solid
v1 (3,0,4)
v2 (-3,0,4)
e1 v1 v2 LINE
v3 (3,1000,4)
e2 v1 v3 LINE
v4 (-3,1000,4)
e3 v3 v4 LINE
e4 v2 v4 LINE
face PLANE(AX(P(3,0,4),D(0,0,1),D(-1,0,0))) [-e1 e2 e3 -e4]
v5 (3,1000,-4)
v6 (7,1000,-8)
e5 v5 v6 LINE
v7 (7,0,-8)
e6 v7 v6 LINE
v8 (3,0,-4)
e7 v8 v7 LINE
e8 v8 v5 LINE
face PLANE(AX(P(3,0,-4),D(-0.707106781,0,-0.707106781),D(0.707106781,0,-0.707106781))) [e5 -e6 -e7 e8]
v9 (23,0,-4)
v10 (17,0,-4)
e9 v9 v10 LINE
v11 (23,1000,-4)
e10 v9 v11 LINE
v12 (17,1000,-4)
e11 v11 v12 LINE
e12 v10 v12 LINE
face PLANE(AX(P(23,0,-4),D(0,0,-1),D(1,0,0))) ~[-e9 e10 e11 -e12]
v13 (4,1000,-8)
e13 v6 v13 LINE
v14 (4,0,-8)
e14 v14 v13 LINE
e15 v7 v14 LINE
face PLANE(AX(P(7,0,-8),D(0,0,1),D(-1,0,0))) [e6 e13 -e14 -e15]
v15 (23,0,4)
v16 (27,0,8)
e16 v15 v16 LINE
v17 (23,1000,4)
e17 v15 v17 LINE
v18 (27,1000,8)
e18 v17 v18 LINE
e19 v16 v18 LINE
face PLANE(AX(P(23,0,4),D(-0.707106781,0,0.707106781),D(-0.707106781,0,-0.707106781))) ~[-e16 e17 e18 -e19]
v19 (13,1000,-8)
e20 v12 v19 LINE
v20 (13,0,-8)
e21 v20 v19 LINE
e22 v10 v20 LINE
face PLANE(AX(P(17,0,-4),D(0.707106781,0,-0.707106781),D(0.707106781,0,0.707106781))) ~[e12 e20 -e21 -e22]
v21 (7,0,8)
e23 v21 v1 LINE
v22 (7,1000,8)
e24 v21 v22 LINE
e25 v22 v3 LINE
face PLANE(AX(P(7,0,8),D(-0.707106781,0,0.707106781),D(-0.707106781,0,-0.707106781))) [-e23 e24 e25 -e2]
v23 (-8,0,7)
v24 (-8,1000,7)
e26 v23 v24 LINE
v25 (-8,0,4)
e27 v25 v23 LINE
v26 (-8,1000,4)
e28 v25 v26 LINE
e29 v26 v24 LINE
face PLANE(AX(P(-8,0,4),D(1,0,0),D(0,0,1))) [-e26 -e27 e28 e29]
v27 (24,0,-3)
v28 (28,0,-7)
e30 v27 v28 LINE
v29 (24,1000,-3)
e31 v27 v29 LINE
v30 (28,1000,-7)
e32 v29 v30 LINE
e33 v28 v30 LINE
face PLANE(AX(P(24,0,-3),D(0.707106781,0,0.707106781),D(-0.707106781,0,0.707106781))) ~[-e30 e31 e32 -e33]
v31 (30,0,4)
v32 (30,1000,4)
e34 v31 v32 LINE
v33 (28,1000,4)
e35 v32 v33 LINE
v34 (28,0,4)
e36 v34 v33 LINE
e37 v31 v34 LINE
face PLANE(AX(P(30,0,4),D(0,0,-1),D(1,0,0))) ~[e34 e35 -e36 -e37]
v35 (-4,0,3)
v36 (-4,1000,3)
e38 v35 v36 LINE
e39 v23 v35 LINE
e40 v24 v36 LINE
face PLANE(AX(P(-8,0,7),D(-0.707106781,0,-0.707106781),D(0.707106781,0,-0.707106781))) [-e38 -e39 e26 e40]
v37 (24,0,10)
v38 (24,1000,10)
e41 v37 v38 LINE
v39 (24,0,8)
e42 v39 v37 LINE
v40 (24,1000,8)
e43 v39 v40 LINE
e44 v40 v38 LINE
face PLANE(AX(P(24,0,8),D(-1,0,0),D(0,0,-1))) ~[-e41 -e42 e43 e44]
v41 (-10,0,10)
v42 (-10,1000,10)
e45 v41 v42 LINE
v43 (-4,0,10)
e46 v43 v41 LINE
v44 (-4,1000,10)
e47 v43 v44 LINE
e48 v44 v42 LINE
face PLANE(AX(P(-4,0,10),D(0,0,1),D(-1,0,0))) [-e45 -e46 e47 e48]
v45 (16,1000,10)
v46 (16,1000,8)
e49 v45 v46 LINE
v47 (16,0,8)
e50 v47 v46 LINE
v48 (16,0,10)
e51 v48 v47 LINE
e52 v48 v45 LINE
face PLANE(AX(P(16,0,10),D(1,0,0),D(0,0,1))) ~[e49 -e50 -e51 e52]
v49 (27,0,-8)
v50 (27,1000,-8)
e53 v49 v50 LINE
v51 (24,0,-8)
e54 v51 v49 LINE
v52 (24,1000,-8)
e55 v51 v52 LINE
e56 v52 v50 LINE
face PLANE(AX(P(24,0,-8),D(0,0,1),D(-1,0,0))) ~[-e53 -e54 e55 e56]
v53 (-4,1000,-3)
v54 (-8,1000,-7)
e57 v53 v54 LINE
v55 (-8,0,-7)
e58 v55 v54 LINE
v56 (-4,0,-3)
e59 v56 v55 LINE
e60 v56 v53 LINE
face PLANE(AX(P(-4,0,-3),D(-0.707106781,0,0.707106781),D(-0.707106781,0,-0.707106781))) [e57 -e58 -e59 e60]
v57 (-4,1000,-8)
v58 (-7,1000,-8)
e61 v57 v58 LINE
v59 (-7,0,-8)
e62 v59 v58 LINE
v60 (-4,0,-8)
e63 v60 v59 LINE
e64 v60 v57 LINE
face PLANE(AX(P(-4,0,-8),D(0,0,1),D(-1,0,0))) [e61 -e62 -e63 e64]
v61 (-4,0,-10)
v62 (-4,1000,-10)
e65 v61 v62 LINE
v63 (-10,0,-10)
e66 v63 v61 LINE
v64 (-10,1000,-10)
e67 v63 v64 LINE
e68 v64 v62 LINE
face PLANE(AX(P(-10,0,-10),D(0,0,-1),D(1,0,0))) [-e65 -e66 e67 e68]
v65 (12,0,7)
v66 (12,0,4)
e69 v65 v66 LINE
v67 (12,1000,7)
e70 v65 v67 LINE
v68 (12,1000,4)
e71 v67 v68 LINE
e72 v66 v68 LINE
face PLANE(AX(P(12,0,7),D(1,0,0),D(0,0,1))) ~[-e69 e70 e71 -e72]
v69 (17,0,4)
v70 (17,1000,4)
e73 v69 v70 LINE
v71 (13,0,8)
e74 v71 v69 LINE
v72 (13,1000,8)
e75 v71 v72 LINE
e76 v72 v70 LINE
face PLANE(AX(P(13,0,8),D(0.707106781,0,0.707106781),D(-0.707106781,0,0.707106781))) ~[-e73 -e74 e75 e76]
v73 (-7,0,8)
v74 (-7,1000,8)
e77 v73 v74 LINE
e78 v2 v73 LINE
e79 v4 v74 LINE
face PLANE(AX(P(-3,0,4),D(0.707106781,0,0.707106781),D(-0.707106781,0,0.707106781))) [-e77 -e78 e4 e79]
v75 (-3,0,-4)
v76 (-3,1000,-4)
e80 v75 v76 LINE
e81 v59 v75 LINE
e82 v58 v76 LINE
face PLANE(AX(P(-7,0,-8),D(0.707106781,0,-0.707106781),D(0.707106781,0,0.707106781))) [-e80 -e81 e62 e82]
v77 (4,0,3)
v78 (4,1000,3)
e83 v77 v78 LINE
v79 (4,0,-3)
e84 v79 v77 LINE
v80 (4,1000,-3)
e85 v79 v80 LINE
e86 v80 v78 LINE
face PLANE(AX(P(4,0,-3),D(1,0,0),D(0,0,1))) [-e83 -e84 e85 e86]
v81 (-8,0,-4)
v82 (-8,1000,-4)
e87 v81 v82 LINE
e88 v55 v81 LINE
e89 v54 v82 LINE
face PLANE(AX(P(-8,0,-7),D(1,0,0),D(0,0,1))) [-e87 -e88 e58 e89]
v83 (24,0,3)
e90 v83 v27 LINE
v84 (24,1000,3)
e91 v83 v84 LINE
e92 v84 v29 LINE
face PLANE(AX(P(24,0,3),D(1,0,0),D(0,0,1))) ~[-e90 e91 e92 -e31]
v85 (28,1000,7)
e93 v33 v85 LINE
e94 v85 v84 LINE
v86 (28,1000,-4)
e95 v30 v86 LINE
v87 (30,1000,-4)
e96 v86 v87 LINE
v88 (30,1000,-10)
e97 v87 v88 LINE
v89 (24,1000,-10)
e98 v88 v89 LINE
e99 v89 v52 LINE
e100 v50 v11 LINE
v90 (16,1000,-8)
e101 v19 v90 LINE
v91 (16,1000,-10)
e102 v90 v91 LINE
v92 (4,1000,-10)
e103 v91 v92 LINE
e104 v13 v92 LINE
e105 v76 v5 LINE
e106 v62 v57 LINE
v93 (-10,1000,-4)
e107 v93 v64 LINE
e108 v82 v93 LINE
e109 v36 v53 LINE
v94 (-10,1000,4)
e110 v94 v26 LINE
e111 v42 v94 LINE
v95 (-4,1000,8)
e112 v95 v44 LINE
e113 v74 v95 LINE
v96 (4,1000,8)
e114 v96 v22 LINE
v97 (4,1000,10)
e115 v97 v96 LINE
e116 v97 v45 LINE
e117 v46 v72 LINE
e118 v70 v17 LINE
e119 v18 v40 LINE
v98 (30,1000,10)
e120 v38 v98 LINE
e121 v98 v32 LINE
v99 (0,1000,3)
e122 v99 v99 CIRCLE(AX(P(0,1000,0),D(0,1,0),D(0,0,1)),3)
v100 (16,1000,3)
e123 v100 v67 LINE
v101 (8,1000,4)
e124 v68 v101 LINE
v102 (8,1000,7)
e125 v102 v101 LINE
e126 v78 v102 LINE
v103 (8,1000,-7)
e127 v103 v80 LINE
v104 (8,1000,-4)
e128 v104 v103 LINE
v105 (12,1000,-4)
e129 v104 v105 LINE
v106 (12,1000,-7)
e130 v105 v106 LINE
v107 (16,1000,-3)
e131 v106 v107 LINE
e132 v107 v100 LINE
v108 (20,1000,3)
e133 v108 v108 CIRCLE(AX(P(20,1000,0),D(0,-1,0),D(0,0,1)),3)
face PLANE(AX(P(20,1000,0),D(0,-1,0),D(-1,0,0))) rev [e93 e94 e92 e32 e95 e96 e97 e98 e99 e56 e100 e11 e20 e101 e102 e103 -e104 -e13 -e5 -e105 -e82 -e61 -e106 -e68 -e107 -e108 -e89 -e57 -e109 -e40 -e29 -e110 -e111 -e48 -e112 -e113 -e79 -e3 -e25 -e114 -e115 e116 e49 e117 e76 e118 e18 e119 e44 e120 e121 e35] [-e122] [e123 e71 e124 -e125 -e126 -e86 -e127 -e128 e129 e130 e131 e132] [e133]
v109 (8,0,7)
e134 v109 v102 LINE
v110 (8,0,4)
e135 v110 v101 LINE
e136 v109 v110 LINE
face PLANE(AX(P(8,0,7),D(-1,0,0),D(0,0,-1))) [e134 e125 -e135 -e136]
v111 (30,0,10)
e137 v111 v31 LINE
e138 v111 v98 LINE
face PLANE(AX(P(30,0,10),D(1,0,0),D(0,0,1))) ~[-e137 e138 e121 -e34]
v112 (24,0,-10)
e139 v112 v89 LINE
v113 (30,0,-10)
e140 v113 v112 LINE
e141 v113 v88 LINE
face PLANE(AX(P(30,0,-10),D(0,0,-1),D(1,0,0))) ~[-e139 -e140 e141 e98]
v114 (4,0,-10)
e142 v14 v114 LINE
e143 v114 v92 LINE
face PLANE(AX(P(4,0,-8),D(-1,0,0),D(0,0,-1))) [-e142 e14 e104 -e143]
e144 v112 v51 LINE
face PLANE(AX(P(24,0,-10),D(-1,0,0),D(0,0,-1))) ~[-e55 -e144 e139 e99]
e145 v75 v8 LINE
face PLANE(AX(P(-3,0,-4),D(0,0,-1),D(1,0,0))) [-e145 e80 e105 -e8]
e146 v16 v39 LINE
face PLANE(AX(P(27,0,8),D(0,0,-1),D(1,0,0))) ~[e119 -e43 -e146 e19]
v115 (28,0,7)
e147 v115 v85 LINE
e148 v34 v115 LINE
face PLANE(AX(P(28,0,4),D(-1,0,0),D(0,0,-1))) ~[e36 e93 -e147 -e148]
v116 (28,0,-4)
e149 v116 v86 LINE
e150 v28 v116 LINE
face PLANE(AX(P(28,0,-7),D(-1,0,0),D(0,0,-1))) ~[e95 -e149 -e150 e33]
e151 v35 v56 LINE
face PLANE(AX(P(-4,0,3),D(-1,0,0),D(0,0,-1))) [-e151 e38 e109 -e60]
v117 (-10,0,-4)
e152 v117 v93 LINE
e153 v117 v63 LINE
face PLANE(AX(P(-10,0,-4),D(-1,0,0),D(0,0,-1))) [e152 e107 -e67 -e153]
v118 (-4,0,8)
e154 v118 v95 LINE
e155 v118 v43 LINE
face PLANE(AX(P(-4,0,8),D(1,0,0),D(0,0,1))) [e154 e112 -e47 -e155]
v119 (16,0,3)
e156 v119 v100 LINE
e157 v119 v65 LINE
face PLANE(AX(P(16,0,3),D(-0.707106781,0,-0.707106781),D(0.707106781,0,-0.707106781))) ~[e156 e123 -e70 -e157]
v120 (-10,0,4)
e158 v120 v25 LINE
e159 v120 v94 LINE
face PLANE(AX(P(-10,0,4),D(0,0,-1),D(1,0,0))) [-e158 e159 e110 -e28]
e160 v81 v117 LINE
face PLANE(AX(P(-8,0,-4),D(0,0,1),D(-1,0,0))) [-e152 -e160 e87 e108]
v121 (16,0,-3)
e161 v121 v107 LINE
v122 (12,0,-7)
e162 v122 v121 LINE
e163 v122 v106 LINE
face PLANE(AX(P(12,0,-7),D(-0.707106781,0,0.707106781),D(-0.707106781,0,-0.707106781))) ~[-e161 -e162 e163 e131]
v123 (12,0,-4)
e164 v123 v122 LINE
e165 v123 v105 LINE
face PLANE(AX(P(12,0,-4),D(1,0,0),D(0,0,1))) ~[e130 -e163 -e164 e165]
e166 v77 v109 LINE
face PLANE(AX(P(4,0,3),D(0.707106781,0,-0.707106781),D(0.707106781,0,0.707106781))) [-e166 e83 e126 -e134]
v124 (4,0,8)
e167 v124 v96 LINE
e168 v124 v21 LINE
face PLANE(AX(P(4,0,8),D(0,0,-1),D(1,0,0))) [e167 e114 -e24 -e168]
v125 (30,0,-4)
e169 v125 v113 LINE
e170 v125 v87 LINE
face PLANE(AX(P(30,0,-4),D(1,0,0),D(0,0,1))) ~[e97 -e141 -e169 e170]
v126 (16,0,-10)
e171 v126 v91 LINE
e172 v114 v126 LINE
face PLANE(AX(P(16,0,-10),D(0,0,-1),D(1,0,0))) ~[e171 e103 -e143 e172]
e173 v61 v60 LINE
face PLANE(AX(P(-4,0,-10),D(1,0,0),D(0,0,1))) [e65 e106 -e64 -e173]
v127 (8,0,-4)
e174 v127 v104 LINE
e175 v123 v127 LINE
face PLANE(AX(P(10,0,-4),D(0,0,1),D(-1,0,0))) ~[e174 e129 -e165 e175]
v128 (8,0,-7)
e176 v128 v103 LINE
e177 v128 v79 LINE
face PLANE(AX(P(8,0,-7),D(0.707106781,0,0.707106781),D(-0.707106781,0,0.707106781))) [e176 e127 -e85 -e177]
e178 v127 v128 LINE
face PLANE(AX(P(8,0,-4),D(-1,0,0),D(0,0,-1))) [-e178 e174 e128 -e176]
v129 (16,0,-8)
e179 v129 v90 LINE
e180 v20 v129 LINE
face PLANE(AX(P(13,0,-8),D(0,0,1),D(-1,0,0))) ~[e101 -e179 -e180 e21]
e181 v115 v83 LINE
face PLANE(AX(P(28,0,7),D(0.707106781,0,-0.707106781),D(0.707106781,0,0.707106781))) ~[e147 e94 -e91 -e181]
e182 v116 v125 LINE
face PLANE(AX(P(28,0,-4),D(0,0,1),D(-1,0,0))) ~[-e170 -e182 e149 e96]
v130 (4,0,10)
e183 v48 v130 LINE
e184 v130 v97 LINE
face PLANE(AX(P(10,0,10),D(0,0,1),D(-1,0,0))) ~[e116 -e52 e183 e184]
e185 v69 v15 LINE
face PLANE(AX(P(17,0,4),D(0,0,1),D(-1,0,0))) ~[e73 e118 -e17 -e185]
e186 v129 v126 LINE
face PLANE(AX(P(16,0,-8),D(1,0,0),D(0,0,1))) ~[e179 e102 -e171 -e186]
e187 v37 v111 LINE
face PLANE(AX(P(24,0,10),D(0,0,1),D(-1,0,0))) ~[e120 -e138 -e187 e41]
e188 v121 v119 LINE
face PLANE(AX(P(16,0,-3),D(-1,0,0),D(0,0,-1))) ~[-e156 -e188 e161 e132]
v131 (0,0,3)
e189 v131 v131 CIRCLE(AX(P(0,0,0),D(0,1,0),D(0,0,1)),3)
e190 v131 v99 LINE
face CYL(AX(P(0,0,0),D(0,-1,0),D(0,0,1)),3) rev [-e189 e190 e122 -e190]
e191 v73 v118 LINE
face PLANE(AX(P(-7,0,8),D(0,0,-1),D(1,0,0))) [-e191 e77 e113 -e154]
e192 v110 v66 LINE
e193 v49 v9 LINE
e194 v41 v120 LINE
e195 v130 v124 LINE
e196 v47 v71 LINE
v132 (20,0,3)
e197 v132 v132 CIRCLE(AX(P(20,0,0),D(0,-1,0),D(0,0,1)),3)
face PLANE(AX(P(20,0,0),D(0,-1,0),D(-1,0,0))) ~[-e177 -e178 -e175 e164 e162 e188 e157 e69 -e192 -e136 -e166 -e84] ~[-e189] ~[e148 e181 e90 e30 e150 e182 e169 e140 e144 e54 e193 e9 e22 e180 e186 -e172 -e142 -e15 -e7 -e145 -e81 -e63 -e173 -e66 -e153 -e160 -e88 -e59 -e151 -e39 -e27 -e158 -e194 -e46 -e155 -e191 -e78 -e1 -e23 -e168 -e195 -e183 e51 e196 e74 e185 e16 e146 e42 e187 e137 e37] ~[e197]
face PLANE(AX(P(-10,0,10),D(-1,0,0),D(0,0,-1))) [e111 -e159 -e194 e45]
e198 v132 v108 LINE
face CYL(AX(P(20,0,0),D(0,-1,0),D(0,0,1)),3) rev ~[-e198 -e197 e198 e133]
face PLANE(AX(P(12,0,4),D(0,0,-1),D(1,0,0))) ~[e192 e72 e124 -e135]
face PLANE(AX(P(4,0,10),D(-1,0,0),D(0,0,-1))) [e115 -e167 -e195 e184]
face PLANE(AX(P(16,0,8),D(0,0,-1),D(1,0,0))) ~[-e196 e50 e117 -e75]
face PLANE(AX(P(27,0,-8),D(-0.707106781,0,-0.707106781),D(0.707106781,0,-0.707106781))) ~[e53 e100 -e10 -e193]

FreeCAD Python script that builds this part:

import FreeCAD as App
import Part
import Sketcher

doc = App.newDocument("Part")
body = doc.addObject("PartDesign::Body", "Body")

# Sketch on XZ plane
sketch1 = body.newObject("Sketcher::SketchObject", "Sketch")
sketch1.AttachmentSupport = (doc.getObject("XZ_Plane"), [""])
sketch1.MapMode = "FlatFace"
sketch1.addGeometry(Part.LineSegment(App.Vector(-4, -8, 0), App.Vector(-4, -10, 0)), False)
sketch1.addGeometry(Part.LineSegment(App.Vector(-4, -10, 0), App.Vector(-10, -10, 0)), False)
sketch1.addGeometry(Part.LineSegment(App.Vector(-10, -10, 0), App.Vector(-10, -4, 0)), False)
sketch1.addGeometry(Part.LineSegment(App.Vector(-10, -4, 0), App.Vector(-8, -4, 0)), False)
sketch1.addGeometry(Part.LineSegment(App.Vector(-8, -4, 0), App.Vector(-8, -7, 0)), False)
sketch1.addGeometry(Part.LineSegment(App.Vector(-8, -7, 0), App.Vector(-4, -3, 0)), False)
sketch1.addGeometry(Part.LineSegment(App.Vector(-4, -3, 0), App.Vector(-4, 3, 0)), False)
sketch1.addGeometry(Part.LineSegment(App.Vector(-4, 3, 0), App.Vector(-8, 7, 0)), False)
sketch1.addGeometry(Part.LineSegment(App.Vector(-8, 7, 0), App.Vector(-8, 4, 0)), False)
sketch1.addGeometry(Part.LineSegment(App.Vector(-8, 4, 0), App.Vector(-10, 4, 0)), False)
sketch1.addGeometry(Part.LineSegment(App.Vector(-10, 4, 0), App.Vector(-10, 10, 0)), False)
sketch1.addGeometry(Part.LineSegment(App.Vector(-10, 10, 0), App.Vector(-4, 10, 0)), False)
sketch1.addGeometry(Part.LineSegment(App.Vector(-4, 10, 0), App.Vector(-4, 8, 0)), False)
sketch1.addGeometry(Part.LineSegment(App.Vector(-4, 8, 0), App.Vector(-7, 8, 0)), False)
sketch1.addGeometry(Part.LineSegment(App.Vector(-7, 8, 0), App.Vector(-3, 4, 0)), False)
sketch1.addGeometry(Part.LineSegment(App.Vector(-3, 4, 0), App.Vector(3, 4, 0)), False)
sketch1.addGeometry(Part.LineSegment(App.Vector(3, 4, 0), App.Vector(7, 8, 0)), False)
sketch1.addGeometry(Part.LineSegment(App.Vector(7, 8, 0), App.Vector(4, 8, 0)), False)
sketch1.addGeometry(Part.LineSegment(App.Vector(4, 8, 0), App.Vector(4, 10, 0)), False)
sketch1.addGeometry(Part.LineSegment(App.Vector(4, 10, 0), App.Vector(10, 10, 0)), False)
sketch1.addGeometry(Part.LineSegment(App.Vector(10, 10, 0), App.Vector(10, 4, 0)), False)
sketch1.addGeometry(Part.LineSegment(App.Vector(10, 4, 0), App.Vector(8, 4, 0)), False)
sketch1.addGeometry(Part.LineSegment(App.Vector(8, 4, 0), App.Vector(8, 7, 0)), False)
sketch1.addGeometry(Part.LineSegment(App.Vector(8, 7, 0), App.Vector(4, 3, 0)), False)
sketch1.addGeometry(Part.LineSegment(App.Vector(4, 3, 0), App.Vector(4, -3, 0)), False)
sketch1.addGeometry(Part.LineSegment(App.Vector(4, -3, 0), App.Vector(8, -7, 0)), False)
sketch1.addGeometry(Part.LineSegment(App.Vector(8, -7, 0), App.Vector(8, -4, 0)), False)
sketch1.addGeometry(Part.LineSegment(App.Vector(8, -4, 0), App.Vector(10, -4, 0)), False)
sketch1.addGeometry(Part.LineSegment(App.Vector(10, -4, 0), App.Vector(10, -10, 0)), False)
sketch1.addGeometry(Part.LineSegment(App.Vector(10, -10, 0), App.Vector(4, -10, 0)), False)
sketch1.addGeometry(Part.LineSegment(App.Vector(4, -10, 0), App.Vector(4, -8, 0)), False)
sketch1.addGeometry(Part.LineSegment(App.Vector(4, -8, 0), App.Vector(7, -8, 0)), False)
sketch1.addGeometry(Part.LineSegment(App.Vector(7, -8, 0), App.Vector(3, -4, 0)), False)
sketch1.addGeometry(Part.LineSegment(App.Vector(3, -4, 0), App.Vector(-3, -4, 0)), False)
sketch1.addGeometry(Part.LineSegment(App.Vector(-3, -4, 0), App.Vector(-7, -8, 0)), False)
sketch1.addGeometry(Part.LineSegment(App.Vector(-7, -8, 0), App.Vector(-4, -8, 0)), False)
sketch1.addGeometry(Part.Circle(App.Vector(0, 0, 0), App.Vector(0, 0, 1), 3), False)
sketch1.addConstraint(Sketcher.Constraint("Coincident", 0, 2, 1, 1))
sketch1.addConstraint(Sketcher.Constraint("Coincident", 1, 2, 2, 1))
sketch1.addConstraint(Sketcher.Constraint("Coincident", 2, 2, 3, 1))
sketch1.addConstraint(Sketcher.Constraint("Coincident", 3, 2, 4, 1))
sketch1.addConstraint(Sketcher.Constraint("Coincident", 4, 2, 5, 1))
sketch1.addConstraint(Sketcher.Constraint("Coincident", 5, 2, 6, 1))
sketch1.addConstraint(Sketcher.Constraint("Coincident", 6, 2, 7, 1))
sketch1.addConstraint(Sketcher.Constraint("Coincident", 7, 2, 8, 1))
sketch1.addConstraint(Sketcher.Constraint("Coincident", 8, 2, 9, 1))
sketch1.addConstraint(Sketcher.Constraint("Coincident", 9, 2, 10, 1))
sketch1.addConstraint(Sketcher.Constraint("Coincident", 10, 2, 11, 1))
sketch1.addConstraint(Sketcher.Constraint("Coincident", 11, 2, 12, 1))
sketch1.addConstraint(Sketcher.Constraint("Coincident", 12, 2, 13, 1))
sketch1.addConstraint(Sketcher.Constraint("Coincident", 13, 2, 14, 1))
sketch1.addConstraint(Sketcher.Constraint("Coincident", 14, 2, 15, 1))
sketch1.addConstraint(Sketcher.Constraint("Coincident", 15, 2, 16, 1))
sketch1.addConstraint(Sketcher.Constraint("Coincident", 16, 2, 17, 1))
sketch1.addConstraint(Sketcher.Constraint("Coincident", 17, 2, 18, 1))
sketch1.addConstraint(Sketcher.Constraint("Coincident", 18, 2, 19, 1))
sketch1.addConstraint(Sketcher.Constraint("Coincident", 19, 2, 20, 1))
sketch1.addConstraint(Sketcher.Constraint("Coincident", 20, 2, 21, 1))
sketch1.addConstraint(Sketcher.Constraint("Coincident", 21, 2, 22, 1))
sketch1.addConstraint(Sketcher.Constraint("Coincident", 22, 2, 23, 1))
sketch1.addConstraint(Sketcher.Constraint("Coincident", 23, 2, 24, 1))
sketch1.addConstraint(Sketcher.Constraint("Coincident", 24, 2, 25, 1))
sketch1.addConstraint(Sketcher.Constraint("Coincident", 25, 2, 26, 1))
sketch1.addConstraint(Sketcher.Constraint("Coincident", 26, 2, 27, 1))
sketch1.addConstraint(Sketcher.Constraint("Coincident", 27, 2, 28, 1))
sketch1.addConstraint(Sketcher.Constraint("Coincident", 28, 2, 29, 1))
sketch1.addConstraint(Sketcher.Constraint("Coincident", 29, 2, 30, 1))
sketch1.addConstraint(Sketcher.Constraint("Coincident", 30, 2, 31, 1))
sketch1.addConstraint(Sketcher.Constraint("Coincident", 31, 2, 32, 1))
sketch1.addConstraint(Sketcher.Constraint("Coincident", 32, 2, 33, 1))
sketch1.addConstraint(Sketcher.Constraint("Coincident", 33, 2, 34, 1))
sketch1.addConstraint(Sketcher.Constraint("Coincident", 34, 2, 35, 1))
sketch1.addConstraint(Sketcher.Constraint("Coincident", 35, 2, 0, 1))
sketch1.addConstraint(Sketcher.Constraint("Vertical", 0))
sketch1.addConstraint(Sketcher.Constraint("Horizontal", 1))
sketch1.addConstraint(Sketcher.Constraint("Vertical", 2))
sketch1.addConstraint(Sketcher.Constraint("Horizontal", 3))
sketch1.addConstraint(Sketcher.Constraint("Vertical", 4))
sketch1.addConstraint(Sketcher.Constraint("Vertical", 6))
sketch1.addConstraint(Sketcher.Constraint("Vertical", 8))
sketch1.addConstraint(Sketcher.Constraint("Horizontal", 9))
sketch1.addConstraint(Sketcher.Constraint("Vertical", 10))
sketch1.addConstraint(Sketcher.Constraint("Horizontal", 11))
sketch1.addConstraint(Sketcher.Constraint("Vertical", 12))
sketch1.addConstraint(Sketcher.Constraint("Horizontal", 13))
sketch1.addConstraint(Sketcher.Constraint("Horizontal", 15))
sketch1.addConstraint(Sketcher.Constraint("Horizontal", 17))
sketch1.addConstraint(Sketcher.Constraint("Vertical", 18))
sketch1.addConstraint(Sketcher.Constraint("Horizontal", 19))
sketch1.addConstraint(Sketcher.Constraint("Vertical", 20))
sketch1.addConstraint(Sketcher.Constraint("Horizontal", 21))
sketch1.addConstraint(Sketcher.Constraint("Vertical", 22))
sketch1.addConstraint(Sketcher.Constraint("Vertical", 24))
sketch1.addConstraint(Sketcher.Constraint("Vertical", 26))
sketch1.addConstraint(Sketcher.Constraint("Horizontal", 27))
sketch1.addConstraint(Sketcher.Constraint("Vertical", 28))
sketch1.addConstraint(Sketcher.Constraint("Horizontal", 29))
sketch1.addConstraint(Sketcher.Constraint("Vertical", 30))
sketch1.addConstraint(Sketcher.Constraint("Horizontal", 31))
sketch1.addConstraint(Sketcher.Constraint("Horizontal", 33))
sketch1.addConstraint(Sketcher.Constraint("Horizontal", 35))
sketch1.addConstraint(Sketcher.Constraint("Coincident", 36, 3, -1, 1))
sketch1.addConstraint(Sketcher.Constraint("Symmetric", 0, 2, 18, 2, -1, 1))
sketch1.addConstraint(Sketcher.Constraint("Symmetric", 2, 2, 20, 2, -1, 1))
sketch1.addConstraint(Sketcher.Constraint("Symmetric", 4, 2, 22, 2, -1, 1))
sketch1.addConstraint(Sketcher.Constraint("Symmetric", 5, 2, 23, 2, -1, 1))
sketch1.addConstraint(Sketcher.Constraint("Symmetric", 7, 2, 25, 2, -1, 1))
sketch1.addConstraint(Sketcher.Constraint("Symmetric", 9, 2, 27, 2, -1, 1))
sketch1.addConstraint(Sketcher.Constraint("Symmetric", 11, 2, 29, 2, -1, 1))
sketch1.addConstraint(Sketcher.Constraint("Symmetric", 13, 2, 31, 2, -1, 1))
sketch1.addConstraint(Sketcher.Constraint("Symmetric", 14, 2, 32, 2, -1, 1))
sketch1.addConstraint(Sketcher.Constraint("Symmetric", 16, 2, 34, 2, -1, 1))
sketch1.addConstraint(Sketcher.Constraint("Symmetric", 13, 2, 16, 2, -2))
sketch1.addConstraint(Sketcher.Constraint("Symmetric", 11, 2, 18, 2, -2))
sketch1.addConstraint(Sketcher.Constraint("Symmetric", 9, 2, 20, 2, -2))
sketch1.addConstraint(Sketcher.Constraint("Symmetric", 7, 2, 22, 2, -2))
sketch1.addConstraint(Sketcher.Constraint("Perpendicular", 5, 7))
sketch1.addConstraint(Sketcher.Constraint("Parallel", 7, 14))
sketch1.addConstraint(Sketcher.Constraint("Perpendicular", 14, 16))
sketch1.addConstraint(Sketcher.Constraint("Perpendicular", 23, 25))
sketch1.addConstraint(Sketcher.Constraint("Perpendicular", 32, 34))
sketch1.addConstraint(Sketcher.Constraint("Horizontal", 9, 2, 14, 2))
sketch1.addConstraint(Sketcher.Constraint("Horizontal", 6, 2, 23, 2))
sketch1.addConstraint(Sketcher.Constraint("Vertical", 0, 2, 5, 2))
sketch1.addConstraint(Sketcher.Constraint("Equal", 11, 15))
sketch1.addConstraint(Sketcher.Constraint("Equal", 27, 0))
sketch1.addConstraint(Sketcher.Constraint("Equal", 33, 2))
sketch1.addConstraint(Sketcher.Constraint("Equal", 35, 4))
sketch1.addConstraint(Sketcher.Constraint("Equal", 2, 6))
sketch1.addConstraint(Sketcher.Constraint("Diameter", 36, 6.0))
sketch1.addConstraint(Sketcher.Constraint("DistanceX", 1, 2, 1, 1, 6.0))
sketch1.addConstraint(Sketcher.Constraint("DistanceX", 3, 1, 3, 2, 2.0))
sketch1.addConstraint(Sketcher.Constraint("DistanceX", 13, 2, 13, 1, 3.0))
pad1 = body.newObject("PartDesign::Pad", "Pad")
pad1.Profile = sketch1
pad1.Length = 1000
pad1.Reversed = True
doc.recompute()

datumplane = body.newObject("PartDesign::Plane", "DatumPlane")
datumplane.AttachmentSupport = (doc.getObject("YZ_Plane"), [""])
datumplane.MapMode = "FlatFace"
datumplane.AttachmentOffset = App.Placement(App.Vector(0, 0, 10), App.Rotation())
mirrored = body.newObject("PartDesign::Mirrored", "Mirrored")
mirrored.Originals = [pad1]
mirrored.MirrorPlane = (datumplane, [""])
body.Tip = mirrored

doc.recompute()
